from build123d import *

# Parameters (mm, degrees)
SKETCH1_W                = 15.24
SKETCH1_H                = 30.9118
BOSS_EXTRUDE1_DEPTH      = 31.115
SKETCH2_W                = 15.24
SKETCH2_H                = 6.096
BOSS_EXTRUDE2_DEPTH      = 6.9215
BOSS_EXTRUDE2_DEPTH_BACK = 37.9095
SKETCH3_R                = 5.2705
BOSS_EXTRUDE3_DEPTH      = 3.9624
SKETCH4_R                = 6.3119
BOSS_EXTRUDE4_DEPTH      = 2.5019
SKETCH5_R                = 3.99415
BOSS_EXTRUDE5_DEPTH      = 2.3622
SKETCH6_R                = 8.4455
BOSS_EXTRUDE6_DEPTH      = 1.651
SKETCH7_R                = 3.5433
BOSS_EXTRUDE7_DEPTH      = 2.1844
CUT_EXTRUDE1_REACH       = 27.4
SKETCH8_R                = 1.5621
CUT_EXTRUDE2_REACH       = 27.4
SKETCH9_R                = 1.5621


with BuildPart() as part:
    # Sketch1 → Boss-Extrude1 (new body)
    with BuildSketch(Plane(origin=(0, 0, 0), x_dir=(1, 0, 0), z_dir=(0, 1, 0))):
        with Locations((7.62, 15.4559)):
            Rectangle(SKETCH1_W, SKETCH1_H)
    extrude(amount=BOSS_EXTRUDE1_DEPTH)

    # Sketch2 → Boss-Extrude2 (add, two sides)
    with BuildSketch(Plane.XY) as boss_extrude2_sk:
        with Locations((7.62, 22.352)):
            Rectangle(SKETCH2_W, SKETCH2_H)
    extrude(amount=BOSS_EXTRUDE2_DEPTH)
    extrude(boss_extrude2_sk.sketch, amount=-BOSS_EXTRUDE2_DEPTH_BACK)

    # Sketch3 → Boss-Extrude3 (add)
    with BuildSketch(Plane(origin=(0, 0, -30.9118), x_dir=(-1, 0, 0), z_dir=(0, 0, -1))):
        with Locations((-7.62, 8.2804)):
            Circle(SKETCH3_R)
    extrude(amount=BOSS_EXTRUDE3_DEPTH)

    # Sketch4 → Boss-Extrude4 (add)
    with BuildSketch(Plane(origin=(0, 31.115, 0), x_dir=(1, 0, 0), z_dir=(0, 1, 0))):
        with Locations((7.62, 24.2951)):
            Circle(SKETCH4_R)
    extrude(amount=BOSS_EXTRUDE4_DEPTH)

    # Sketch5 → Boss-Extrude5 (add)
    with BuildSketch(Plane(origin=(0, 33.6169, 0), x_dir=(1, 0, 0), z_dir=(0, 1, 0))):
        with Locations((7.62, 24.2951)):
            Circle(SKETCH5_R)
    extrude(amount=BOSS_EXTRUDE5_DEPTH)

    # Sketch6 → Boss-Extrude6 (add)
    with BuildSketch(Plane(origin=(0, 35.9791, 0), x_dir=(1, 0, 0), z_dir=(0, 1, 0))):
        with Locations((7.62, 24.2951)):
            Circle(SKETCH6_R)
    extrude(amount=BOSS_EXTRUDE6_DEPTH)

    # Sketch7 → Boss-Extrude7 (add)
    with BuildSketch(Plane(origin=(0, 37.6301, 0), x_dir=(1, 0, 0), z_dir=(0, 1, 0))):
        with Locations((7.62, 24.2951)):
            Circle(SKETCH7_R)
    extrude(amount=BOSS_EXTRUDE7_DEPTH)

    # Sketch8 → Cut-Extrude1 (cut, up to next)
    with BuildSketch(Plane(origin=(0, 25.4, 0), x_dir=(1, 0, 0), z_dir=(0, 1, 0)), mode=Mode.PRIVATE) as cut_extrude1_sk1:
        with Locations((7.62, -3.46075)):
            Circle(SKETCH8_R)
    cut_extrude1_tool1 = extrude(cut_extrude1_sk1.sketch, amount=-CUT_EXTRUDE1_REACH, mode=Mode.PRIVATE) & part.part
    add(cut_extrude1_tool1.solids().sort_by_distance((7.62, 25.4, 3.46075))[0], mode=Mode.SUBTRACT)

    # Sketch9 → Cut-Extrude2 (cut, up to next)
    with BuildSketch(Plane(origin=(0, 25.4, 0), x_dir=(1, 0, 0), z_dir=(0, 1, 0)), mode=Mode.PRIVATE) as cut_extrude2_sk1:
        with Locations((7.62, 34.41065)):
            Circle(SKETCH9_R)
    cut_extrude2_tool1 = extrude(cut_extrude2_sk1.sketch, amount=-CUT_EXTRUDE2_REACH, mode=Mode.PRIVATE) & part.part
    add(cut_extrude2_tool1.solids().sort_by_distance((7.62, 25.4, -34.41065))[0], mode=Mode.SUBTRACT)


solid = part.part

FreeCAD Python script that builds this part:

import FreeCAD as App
import Part
import Sketcher
from FreeCAD import Vector
Q = App.Units.Quantity

doc = App.newDocument("Part")
params = doc.addObject("Spreadsheet::Sheet", "Params")
for row, (alias, value) in enumerate([
    ("sketch1_width", "0.6 in"),
    ("sketch1_height", "1.217 in"),
    ("pad1_length", "1.225 in"),
    ("sketch2_width", "0.6 in"),
    ("sketch2_height", "0.24 in"),
    ("pad2_length", "0.2725 in"),
    ("pad2_length2", "1.4925 in"),
    ("sketch3_diameter", "0.415 in"),
    ("pad3_length", "0.156 in"),
    ("sketch4_diameter", "0.497 in"),
    ("pad4_length", "0.0985 in"),
    ("pad5_length", "0.093 in"),
    ("sketch6_diameter", "0.665 in"),
    ("pad6_length", "0.065 in"),
    ("sketch7_diameter", "0.279 in"),
    ("pad7_length", "0.086 in"),
    ("sketch8_diameter", "0.123 in"),
    ("sketch9_diameter", "0.123 in"),
], start=1):
    params.set(f"A{row}", alias)
    params.set(f"B{row}", "=" + value)
    params.setAlias(f"B{row}", alias)

body = doc.addObject("PartDesign::Body", "Body")

# Sketch on XZ plane
sketch1 = doc.addObject("Sketcher::SketchObject", "Sketch")
body.addObject(sketch1)
sketch1.AttachmentSupport = (doc.XZ_Plane, [""])
sketch1.MapMode = "FlatFace"
sketch1.addGeometry([
    Part.LineSegment(Vector(0, -30.9118, 0), Vector(0, 0, 0)),
    Part.LineSegment(Vector(0, 0, 0), Vector(15.24, 0, 0)),
    Part.LineSegment(Vector(15.24, 0, 0), Vector(15.24, -30.9118, 0)),
    Part.LineSegment(Vector(15.24, -30.9118, 0), Vector(0, -30.9118, 0)),
], False)
sketch1.addConstraint([
    Sketcher.Constraint("Coincident", 0, 2, 1, 1),
    Sketcher.Constraint("Coincident", 1, 2, 2, 1),
    Sketcher.Constraint("Coincident", 2, 2, 3, 1),
    Sketcher.Constraint("Coincident", 3, 2, 0, 1),
    Sketcher.Constraint("Vertical", 0),
    Sketcher.Constraint("Horizontal", 1),
    Sketcher.Constraint("Vertical", 2),
    Sketcher.Constraint("Horizontal", 3),
    Sketcher.Constraint("Coincident", 0, 2, -1, 1),
    Sketcher.Constraint("DistanceX", 1, 1, 1, 2, Q("0.6 in")),
    Sketcher.Constraint("DistanceY", 0, 1, 0, 2, Q("1.217 in")),
])
sketch1.setExpression("Constraints[9]", "Params.sketch1_width")
sketch1.setExpression("Constraints[10]", "Params.sketch1_height")
pad1 = doc.addObject("PartDesign::Pad", "Pad")
body.addObject(pad1)
pad1.Profile = sketch1
pad1.setExpression("Length", "Params.pad1_length")
pad1.Reversed = True

# Sketch on XY plane
sketch2 = doc.addObject("Sketcher::SketchObject", "Sketch001")
body.addObject(sketch2)
sketch2.AttachmentSupport = (doc.XY_Plane, [""])
sketch2.MapMode = "FlatFace"
sketch2.addGeometry([
    Part.LineSegment(Vector(0, 25.4, 0), Vector(0, 19.304, 0)),
    Part.LineSegment(Vector(0, 19.304, 0), Vector(15.24, 19.304, 0)),
    Part.LineSegment(Vector(15.24, 19.304, 0), Vector(15.24, 25.4, 0)),
    Part.LineSegment(Vector(15.24, 25.4, 0), Vector(0, 25.4, 0)),
], False)
sketch2.addConstraint([
    Sketcher.Constraint("Coincident", 0, 2, 1, 1),
    Sketcher.Constraint("Coincident", 1, 2, 2, 1),
    Sketcher.Constraint("Coincident", 2, 2, 3, 1),
    Sketcher.Constraint("Coincident", 3, 2, 0, 1),
    Sketcher.Constraint("Vertical", 0),
    Sketcher.Constraint("Horizontal", 1),
    Sketcher.Constraint("Vertical", 2),
    Sketcher.Constraint("Horizontal", 3),
    Sketcher.Constraint("PointOnObject", 0, 2, -2),
    Sketcher.Constraint("DistanceX", 1, 1, 1, 2, Q("0.6 in")),
    Sketcher.Constraint("DistanceY", -1, 1, 2, 2, Q("1 in")),
    Sketcher.Constraint("DistanceY", 0, 2, 0, 1, Q("0.24 in")),
])
sketch2.setExpression("Constraints[9]", "Params.sketch2_width")
sketch2.setExpression("Constraints[11]", "Params.sketch2_height")
pad2 = doc.addObject("PartDesign::Pad", "Pad001")
body.addObject(pad2)
pad2.Profile = sketch2
pad2.Type = "TwoLengths"
pad2.setExpression("Length", "Params.pad2_length")
pad2.setExpression("Length2", "Params.pad2_length2")

# Sketch on XY plane
sketch3 = doc.addObject("Sketcher::SketchObject", "Sketch002")
body.addObject(sketch3)
sketch3.AttachmentSupport = (doc.XY_Plane, [""])
sketch3.MapMode = "FlatFace"
sketch3.AttachmentOffset = App.Placement(Vector(0, 0, -1.217 * 25.4), App.Rotation())
sketch3.addGeometry(Part.Circle(Vector(7.62, 8.2804, 0), Vector(0, 0, 1), 5.2705), False)
sketch3.addConstraint([
    Sketcher.Constraint("Diameter", 0, Q("0.415 in")),
    Sketcher.Constraint("DistanceX", -1, 1, 0, 3, Q("0.3 in")),
    Sketcher.Constraint("DistanceY", -1, 1, 0, 3, Q("0.326 in")),
])
sketch3.setExpression("Constraints[0]", "Params.sketch3_diameter")
pad3 = doc.addObject("PartDesign::Pad", "Pad002")
body.addObject(pad3)
pad3.Profile = sketch3
pad3.setExpression("Length", "Params.pad3_length")
pad3.Reversed = True

# Sketch on XZ plane
sketch4 = doc.addObject("Sketcher::SketchObject", "Sketch003")
body.addObject(sketch4)
sketch4.AttachmentSupport = (doc.XZ_Plane, [""])
sketch4.MapMode = "FlatFace"
sketch4.AttachmentOffset = App.Placement(Vector(0, 0, -1.225 * 25.4), App.Rotation())
sketch4.addGeometry(Part.Circle(Vector(7.62, -24.2951, 0), Vector(0, 0, 1), 6.3119), False)
sketch4.addConstraint([
    Sketcher.Constraint("Diameter", 0, Q("0.497 in")),
    Sketcher.Constraint("DistanceX", -1, 1, 0, 3, Q("0.3 in")),
    Sketcher.Constraint("DistanceY", 0, 3, -1, 1, Q("0.9565 in")),
])
sketch4.setExpression("Constraints[0]", "Params.sketch4_diameter")
pad4 = doc.addObject("PartDesign::Pad", "Pad003")
body.addObject(pad4)
pad4.Profile = sketch4
pad4.setExpression("Length", "Params.pad4_length")
pad4.Reversed = True

# Sketch on XZ plane
sketch5 = doc.addObject("Sketcher::SketchObject", "Sketch004")
body.addObject(sketch5)
sketch5.AttachmentSupport = (doc.XZ_Plane, [""])
sketch5.MapMode = "FlatFace"
sketch5.AttachmentOffset = App.Placement(Vector(0, 0, -1.3235 * 25.4), App.Rotation())
sketch5.addGeometry(Part.Circle(Vector(7.62, -24.2951, 0), Vector(0, 0, 1), 3.99415), False)
sketch5.addConstraint([
    Sketcher.Constraint("Diameter", 0, Q("0.3145 in")),
    Sketcher.Constraint("DistanceX", -1, 1, 0, 3, Q("0.3 in")),
    Sketcher.Constraint("DistanceY", 0, 3, -1, 1, Q("0.9565 in")),
])
pad5 = doc.addObject("PartDesign::Pad", "Pad004")
body.addObject(pad5)
pad5.Profile = sketch5
pad5.setExpression("Length", "Params.pad5_length")
pad5.Reversed = True

# Sketch on XZ plane
sketch6 = doc.addObject("Sketcher::SketchObject", "Sketch005")
body.addObject(sketch6)
sketch6.AttachmentSupport = (doc.XZ_Plane, [""])
sketch6.MapMode = "FlatFace"
sketch6.AttachmentOffset = App.Placement(Vector(0, 0, -1.4165 * 25.4), App.Rotation())
sketch6.addGeometry(Part.Circle(Vector(7.62, -24.2951, 0), Vector(0, 0, 1), 8.4455), False)
sketch6.addConstraint([
    Sketcher.Constraint("Diameter", 0, Q("0.665 in")),
    Sketcher.Constraint("DistanceX", -1, 1, 0, 3, Q("0.3 in")),
    Sketcher.Constraint("DistanceY", 0, 3, -1, 1, Q("0.9565 in")),
])
sketch6.setExpression("Constraints[0]", "Params.sketch6_diameter")
pad6 = doc.addObject("PartDesign::Pad", "Pad005")
body.addObject(pad6)
pad6.Profile = sketch6
pad6.setExpression("Length", "Params.pad6_length")
pad6.Reversed = True

# Sketch on XZ plane
sketch7 = doc.addObject("Sketcher::SketchObject", "Sketch006")
body.addObject(sketch7)
sketch7.AttachmentSupport = (doc.XZ_Plane, [""])
sketch7.MapMode = "FlatFace"
sketch7.AttachmentOffset = App.Placement(Vector(0, 0, -1.4815 * 25.4), App.Rotation())
sketch7.addGeometry(Part.Circle(Vector(7.62, -24.2951, 0), Vector(0, 0, 1), 3.5433), False)
sketch7.addConstraint([
    Sketcher.Constraint("Diameter", 0, Q("0.279 in")),
    Sketcher.Constraint("DistanceX", -1, 1, 0, 3, Q("0.3 in")),
    Sketcher.Constraint("DistanceY", 0, 3, -1, 1, Q("0.9565 in")),
])
sketch7.setExpression("Constraints[0]", "Params.sketch7_diameter")
pad7 = doc.addObject("PartDesign::Pad", "Pad006")
body.addObject(pad7)
pad7.Profile = sketch7
pad7.setExpression("Length", "Params.pad7_length")
pad7.Reversed = True

# Sketch on XZ plane
sketch8 = doc.addObject("Sketcher::SketchObject", "Sketch007")
body.addObject(sketch8)
sketch8.AttachmentSupport = (doc.XZ_Plane, [""])
sketch8.MapMode = "FlatFace"
sketch8.AttachmentOffset = App.Placement(Vector(0, 0, -1 * 25.4), App.Rotation())
sketch8.addGeometry(Part.Circle(Vector(7.62, 3.46075, 0), Vector(0, 0, 1), 1.5621), False)
sketch8.addConstraint([
    Sketcher.Constraint("Diameter", 0, Q("0.123 in")),
    Sketcher.Constraint("DistanceX", -1, 1, 0, 3, Q("0.3 in")),
    Sketcher.Constraint("DistanceY", -1, 1, 0, 3, Q("3.46075 mm")),
])
sketch8.setExpression("Constraints[0]", "Params.sketch8_diameter")
pocket1 = doc.addObject("PartDesign::Pocket", "Pocket")
body.addObject(pocket1)
pocket1.Profile = sketch8
pocket1.Type = "UpToFirst"
pocket1.Reversed = True

# Sketch on XZ plane
sketch9 = doc.addObject("Sketcher::SketchObject", "Sketch008")
body.addObject(sketch9)
sketch9.AttachmentSupport = (doc.XZ_Plane, [""])
sketch9.MapMode = "FlatFace"
sketch9.AttachmentOffset = App.Placement(Vector(0, 0, -1 * 25.4), App.Rotation())
sketch9.addGeometry(Part.Circle(Vector(7.62, -34.41065, 0), Vector(0, 0, 1), 1.5621), False)
sketch9.addConstraint([
    Sketcher.Constraint("Diameter", 0, Q("0.123 in")),
    Sketcher.Constraint("DistanceX", -1, 1, 0, 3, Q("0.3 in")),
    Sketcher.Constraint("DistanceY", 0, 3, -1, 1, Q("34.41065 mm")),
])
sketch9.setExpression("Constraints[0]", "Params.sketch9_diameter")
pocket2 = doc.addObject("PartDesign::Pocket", "Pocket001")
body.addObject(pocket2)
pocket2.Profile = sketch9
pocket2.Type = "UpToFirst"
pocket2.Reversed = True

doc.recompute()
